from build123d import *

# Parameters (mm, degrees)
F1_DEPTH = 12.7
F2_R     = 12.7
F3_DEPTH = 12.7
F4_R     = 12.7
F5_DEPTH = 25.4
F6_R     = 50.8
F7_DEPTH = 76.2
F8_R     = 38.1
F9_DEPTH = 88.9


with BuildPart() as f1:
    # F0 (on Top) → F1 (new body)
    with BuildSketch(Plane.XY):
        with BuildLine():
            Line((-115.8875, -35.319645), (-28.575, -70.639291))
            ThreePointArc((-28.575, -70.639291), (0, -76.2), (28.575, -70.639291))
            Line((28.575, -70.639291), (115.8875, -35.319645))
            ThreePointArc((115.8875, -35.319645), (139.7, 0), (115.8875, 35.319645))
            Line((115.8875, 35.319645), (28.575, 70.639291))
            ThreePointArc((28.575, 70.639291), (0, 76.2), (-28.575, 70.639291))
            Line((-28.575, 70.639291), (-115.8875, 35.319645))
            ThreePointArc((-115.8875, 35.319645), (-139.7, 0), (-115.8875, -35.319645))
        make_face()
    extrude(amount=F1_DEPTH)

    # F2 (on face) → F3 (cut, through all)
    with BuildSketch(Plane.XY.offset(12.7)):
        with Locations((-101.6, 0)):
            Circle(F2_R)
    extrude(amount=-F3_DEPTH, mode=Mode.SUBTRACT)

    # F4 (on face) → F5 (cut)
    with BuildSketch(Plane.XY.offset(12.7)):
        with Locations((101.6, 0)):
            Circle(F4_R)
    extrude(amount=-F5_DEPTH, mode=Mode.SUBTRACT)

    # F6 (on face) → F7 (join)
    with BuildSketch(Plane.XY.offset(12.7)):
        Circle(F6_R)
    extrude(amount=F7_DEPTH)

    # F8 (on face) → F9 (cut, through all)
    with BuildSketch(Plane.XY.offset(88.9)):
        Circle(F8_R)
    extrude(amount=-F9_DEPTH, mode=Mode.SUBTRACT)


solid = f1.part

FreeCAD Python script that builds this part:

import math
import FreeCAD as App
import Part
import Sketcher
from FreeCAD import Vector
Q = App.Units.Quantity

doc = App.newDocument("Part")
body = doc.addObject("PartDesign::Body", "Body")

sketch1 = body.newObject("Sketcher::SketchObject", "Sketch")
sketch1.AttachmentSupport = (doc.getObject("XY_Plane"), [""])
sketch1.MapMode = "FlatFace"
sketch1.addGeometry(Part.LineSegment(Vector(-116, -35, 0), Vector(-29, -71, 0)), False)
sketch1.addGeometry(Part.ArcOfCircle(Part.Circle(Vector(0, 0, 0), Vector(0, 0, 1), 76), math.radians(-112), math.radians(-68)), False)
sketch1.addGeometry(Part.LineSegment(Vector(29, -71, 0), Vector(116, -35, 0)), False)
sketch1.addGeometry(Part.ArcOfCircle(Part.Circle(Vector(102, 0, 0), Vector(0, 0, 1), 38), math.radians(-68), math.radians(68)), False)
sketch1.addGeometry(Part.LineSegment(Vector(116, 35, 0), Vector(29, 71, 0)), False)
sketch1.addGeometry(Part.ArcOfCircle(Part.Circle(Vector(0, 0, 0), Vector(0, 0, 1), 76), math.radians(68), math.radians(112)), False)
sketch1.addGeometry(Part.LineSegment(Vector(-29, 71, 0), Vector(-116, 35, 0)), False)
sketch1.addGeometry(Part.ArcOfCircle(Part.Circle(Vector(-102, 0, 0), Vector(0, 0, 1), 38), math.radians(112), math.radians(248)), False)
sketch1.addConstraint(Sketcher.Constraint("Tangent", 0, 2, 1, 1))
sketch1.addConstraint(Sketcher.Constraint("Tangent", 1, 2, 2, 1))
sketch1.addConstraint(Sketcher.Constraint("Tangent", 2, 2, 3, 1))
sketch1.addConstraint(Sketcher.Constraint("Tangent", 3, 2, 4, 1))
sketch1.addConstraint(Sketcher.Constraint("Tangent", 4, 2, 5, 1))
sketch1.addConstraint(Sketcher.Constraint("Tangent", 5, 2, 6, 1))
sketch1.addConstraint(Sketcher.Constraint("Tangent", 6, 2, 7, 1))
sketch1.addConstraint(Sketcher.Constraint("Tangent", 7, 2, 0, 1))
sketch1.addConstraint(Sketcher.Constraint("Coincident", 1, 3, -1, 1))
sketch1.addConstraint(Sketcher.Constraint("Coincident", 5, 3, -1, 1))
sketch1.addConstraint(Sketcher.Constraint("Equal", 1, 5))
sketch1.addConstraint(Sketcher.Constraint("Equal", 3, 7))
sketch1.addConstraint(Sketcher.Constraint("Symmetric", 3, 3, 7, 3, -1, 1))
sketch1.addConstraint(Sketcher.Constraint("PointOnObject", 3, 3, -1))
sketch1.addConstraint(Sketcher.Constraint("Radius", 3, Q("1.5 in")))
sketch1.addConstraint(Sketcher.Constraint("DistanceX", -1, 1, 3, 3, Q("4 in")))
sketch1.addConstraint(Sketcher.Constraint("DistanceX", 0, 2, 1, 2, Q("2.25 in")))
pad1 = body.newObject("PartDesign::Pad", "Pad")
pad1.Profile = sketch1
pad1.Length = Q("0.5 in")

sketch2 = body.newObject("Sketcher::SketchObject", "Sketch001")
sketch2.AttachmentSupport = (doc.getObject("XY_Plane"), [""])
sketch2.MapMode = "FlatFace"
sketch2.AttachmentOffset = App.Placement(Vector(0, 0, 0.5 * 25.4), App.Rotation())
sketch2.addGeometry(Part.Circle(Vector(-102, 0, 0), Vector(0, 0, 1), 13), False)
sketch2.addConstraint(Sketcher.Constraint("PointOnObject", 0, 3, -1))
sketch2.addConstraint(Sketcher.Constraint("Diameter", 0, Q("1 in")))
sketch2.addConstraint(Sketcher.Constraint("DistanceX", 0, 3, -1, 1, Q("4 in")))
pocket1 = body.newObject("PartDesign::Pocket", "Pocket")
pocket1.Profile = sketch2
pocket1.Type = "ThroughAll"

sketch3 = body.newObject("Sketcher::SketchObject", "Sketch002")
sketch3.AttachmentSupport = (doc.getObject("XY_Plane"), [""])
sketch3.MapMode = "FlatFace"
sketch3.AttachmentOffset = App.Placement(Vector(0, 0, 0.5 * 25.4), App.Rotation())
sketch3.addGeometry(Part.Circle(Vector(102, 0, 0), Vector(0, 0, 1), 13), False)
sketch3.addConstraint(Sketcher.Constraint("PointOnObject", 0, 3, -1))
sketch3.addConstraint(Sketcher.Constraint("Diameter", 0, Q("1 in")))
sketch3.addConstraint(Sketcher.Constraint("DistanceX", -1, 1, 0, 3, Q("4 in")))
pocket2 = body.newObject("PartDesign::Pocket", "Pocket001")
pocket2.Profile = sketch3
pocket2.Length = Q("1 in")

sketch4 = body.newObject("Sketcher::SketchObject", "Sketch003")
sketch4.AttachmentSupport = (doc.getObject("XY_Plane"), [""])
sketch4.MapMode = "FlatFace"
sketch4.AttachmentOffset = App.Placement(Vector(0, 0, 0.5 * 25.4), App.Rotation())
sketch4.addGeometry(Part.Circle(Vector(0, 0, 0), Vector(0, 0, 1), 51), False)
sketch4.addConstraint(Sketcher.Constraint("Coincident", 0, 3, -1, 1))
sketch4.addConstraint(Sketcher.Constraint("Diameter", 0, Q("4 in")))
pad2 = body.newObject("PartDesign::Pad", "Pad001")
pad2.Profile = sketch4
pad2.Length = Q("3 in")

sketch5 = body.newObject("Sketcher::SketchObject", "Sketch004")
sketch5.AttachmentSupport = (doc.getObject("XY_Plane"), [""])
sketch5.MapMode = "FlatFace"
sketch5.AttachmentOffset = App.Placement(Vector(0, 0, 3.5 * 25.4), App.Rotation())
sketch5.addGeometry(Part.Circle(Vector(0, 0, 0), Vector(0, 0, 1), 38), False)
sketch5.addConstraint(Sketcher.Constraint("Coincident", 0, 3, -1, 1))
sketch5.addConstraint(Sketcher.Constraint("Diameter", 0, Q("3 in")))
pocket3 = body.newObject("PartDesign::Pocket", "Pocket002")
pocket3.Profile = sketch5
pocket3.Type = "ThroughAll"

doc.recompute()
